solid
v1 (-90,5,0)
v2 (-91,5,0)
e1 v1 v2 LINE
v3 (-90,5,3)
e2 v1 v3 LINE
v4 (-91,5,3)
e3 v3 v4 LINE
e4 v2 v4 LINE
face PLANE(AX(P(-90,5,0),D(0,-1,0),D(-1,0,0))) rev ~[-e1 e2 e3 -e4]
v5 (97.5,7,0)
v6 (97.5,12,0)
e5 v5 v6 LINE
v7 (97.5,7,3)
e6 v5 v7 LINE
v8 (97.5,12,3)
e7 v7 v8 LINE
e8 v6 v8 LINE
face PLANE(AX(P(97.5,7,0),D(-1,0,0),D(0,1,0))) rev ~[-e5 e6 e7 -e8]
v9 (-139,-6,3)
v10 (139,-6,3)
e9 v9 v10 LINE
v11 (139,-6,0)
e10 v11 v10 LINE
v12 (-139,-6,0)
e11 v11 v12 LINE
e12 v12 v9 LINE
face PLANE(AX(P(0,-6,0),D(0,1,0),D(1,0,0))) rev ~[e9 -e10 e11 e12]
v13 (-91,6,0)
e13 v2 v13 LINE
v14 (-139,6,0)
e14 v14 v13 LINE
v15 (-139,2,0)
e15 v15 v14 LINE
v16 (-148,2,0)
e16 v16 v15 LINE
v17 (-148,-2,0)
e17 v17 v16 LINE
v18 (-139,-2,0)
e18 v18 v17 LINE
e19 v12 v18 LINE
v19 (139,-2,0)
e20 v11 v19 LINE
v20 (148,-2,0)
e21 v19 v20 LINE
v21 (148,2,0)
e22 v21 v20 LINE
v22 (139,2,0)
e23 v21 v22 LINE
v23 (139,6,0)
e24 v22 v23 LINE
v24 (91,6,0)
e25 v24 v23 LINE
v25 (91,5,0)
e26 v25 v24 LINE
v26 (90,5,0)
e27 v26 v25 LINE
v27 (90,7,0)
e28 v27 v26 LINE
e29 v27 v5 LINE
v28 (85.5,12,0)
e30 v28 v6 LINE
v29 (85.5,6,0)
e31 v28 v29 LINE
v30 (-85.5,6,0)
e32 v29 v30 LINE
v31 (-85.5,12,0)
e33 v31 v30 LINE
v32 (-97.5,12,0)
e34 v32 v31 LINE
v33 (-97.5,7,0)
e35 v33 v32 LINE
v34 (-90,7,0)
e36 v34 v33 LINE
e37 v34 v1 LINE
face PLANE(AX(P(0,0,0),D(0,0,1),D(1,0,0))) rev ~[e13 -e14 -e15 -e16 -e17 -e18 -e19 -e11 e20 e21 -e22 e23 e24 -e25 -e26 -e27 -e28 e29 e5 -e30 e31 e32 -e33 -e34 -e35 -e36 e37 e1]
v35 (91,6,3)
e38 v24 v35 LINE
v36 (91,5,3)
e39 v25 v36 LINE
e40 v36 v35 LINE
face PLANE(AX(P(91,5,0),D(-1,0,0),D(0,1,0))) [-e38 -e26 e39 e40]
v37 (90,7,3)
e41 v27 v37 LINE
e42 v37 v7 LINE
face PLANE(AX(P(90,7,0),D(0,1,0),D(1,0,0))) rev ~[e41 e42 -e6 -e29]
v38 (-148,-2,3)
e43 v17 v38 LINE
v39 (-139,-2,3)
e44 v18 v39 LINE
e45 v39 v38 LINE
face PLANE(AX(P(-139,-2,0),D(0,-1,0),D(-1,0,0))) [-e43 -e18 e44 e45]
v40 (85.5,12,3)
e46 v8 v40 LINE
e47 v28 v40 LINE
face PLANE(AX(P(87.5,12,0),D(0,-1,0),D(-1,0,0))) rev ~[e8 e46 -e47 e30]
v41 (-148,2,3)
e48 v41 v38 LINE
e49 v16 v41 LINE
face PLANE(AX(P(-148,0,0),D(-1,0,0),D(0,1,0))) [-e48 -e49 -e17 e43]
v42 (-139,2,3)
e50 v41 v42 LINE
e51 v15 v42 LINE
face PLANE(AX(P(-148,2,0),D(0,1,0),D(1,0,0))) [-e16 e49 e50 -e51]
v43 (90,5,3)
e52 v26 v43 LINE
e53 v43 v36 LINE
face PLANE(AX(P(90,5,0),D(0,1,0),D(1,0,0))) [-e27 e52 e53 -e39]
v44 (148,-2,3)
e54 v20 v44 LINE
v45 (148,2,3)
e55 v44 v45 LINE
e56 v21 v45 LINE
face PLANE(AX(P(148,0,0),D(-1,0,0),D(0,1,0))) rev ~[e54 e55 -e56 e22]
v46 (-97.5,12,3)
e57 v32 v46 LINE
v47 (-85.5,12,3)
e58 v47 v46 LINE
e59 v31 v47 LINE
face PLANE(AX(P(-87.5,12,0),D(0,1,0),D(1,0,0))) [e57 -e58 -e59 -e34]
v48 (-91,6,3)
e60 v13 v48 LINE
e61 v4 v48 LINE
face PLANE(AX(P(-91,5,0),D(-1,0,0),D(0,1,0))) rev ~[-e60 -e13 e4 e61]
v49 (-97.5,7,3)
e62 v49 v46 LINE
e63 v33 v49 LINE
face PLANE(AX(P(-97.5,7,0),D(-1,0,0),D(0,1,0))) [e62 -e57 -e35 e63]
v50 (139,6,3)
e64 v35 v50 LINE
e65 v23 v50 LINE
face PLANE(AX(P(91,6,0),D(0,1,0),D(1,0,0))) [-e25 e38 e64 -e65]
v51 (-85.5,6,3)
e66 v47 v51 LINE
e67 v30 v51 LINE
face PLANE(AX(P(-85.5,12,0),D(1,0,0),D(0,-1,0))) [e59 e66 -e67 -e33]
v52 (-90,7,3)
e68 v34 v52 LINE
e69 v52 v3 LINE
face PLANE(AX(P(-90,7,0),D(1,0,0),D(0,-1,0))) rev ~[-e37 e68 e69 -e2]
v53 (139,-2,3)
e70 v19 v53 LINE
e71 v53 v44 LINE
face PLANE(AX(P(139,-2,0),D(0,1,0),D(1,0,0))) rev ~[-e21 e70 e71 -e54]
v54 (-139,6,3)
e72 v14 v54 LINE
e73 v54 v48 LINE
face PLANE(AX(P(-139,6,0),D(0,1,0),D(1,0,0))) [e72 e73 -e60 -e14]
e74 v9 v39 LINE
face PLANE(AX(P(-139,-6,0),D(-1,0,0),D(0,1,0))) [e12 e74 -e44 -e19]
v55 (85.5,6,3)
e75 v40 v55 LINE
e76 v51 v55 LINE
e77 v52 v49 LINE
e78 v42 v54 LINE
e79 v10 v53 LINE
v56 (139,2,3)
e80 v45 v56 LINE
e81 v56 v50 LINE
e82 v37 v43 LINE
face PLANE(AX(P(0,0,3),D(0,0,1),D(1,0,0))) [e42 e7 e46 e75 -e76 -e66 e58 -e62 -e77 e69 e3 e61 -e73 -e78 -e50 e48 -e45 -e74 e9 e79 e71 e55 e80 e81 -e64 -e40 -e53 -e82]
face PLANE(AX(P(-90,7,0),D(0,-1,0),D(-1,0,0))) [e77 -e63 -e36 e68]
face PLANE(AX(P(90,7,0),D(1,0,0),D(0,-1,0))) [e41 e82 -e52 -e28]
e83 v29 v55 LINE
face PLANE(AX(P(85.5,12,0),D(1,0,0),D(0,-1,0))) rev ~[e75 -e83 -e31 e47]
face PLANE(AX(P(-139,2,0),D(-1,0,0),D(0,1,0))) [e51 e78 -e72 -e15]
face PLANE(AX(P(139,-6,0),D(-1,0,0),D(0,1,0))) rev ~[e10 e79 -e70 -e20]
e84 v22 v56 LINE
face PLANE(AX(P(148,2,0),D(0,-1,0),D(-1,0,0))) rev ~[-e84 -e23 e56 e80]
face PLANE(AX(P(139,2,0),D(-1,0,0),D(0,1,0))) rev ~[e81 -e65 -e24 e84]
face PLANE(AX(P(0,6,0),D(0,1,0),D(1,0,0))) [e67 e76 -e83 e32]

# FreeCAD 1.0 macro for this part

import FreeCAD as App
import Part
import Sketcher
Q = App.Units.Quantity


def add_polygon(sketch, points):
    """Adds a closed chain of lines whose ends are joined by coincident constraints."""
    first, n = sketch.GeometryCount, len(points)
    for a, b in zip(points, points[1:] + points[:1]):
        sketch.addGeometry(Part.LineSegment(App.Vector(*a, 0), App.Vector(*b, 0)), False)
    for i in range(n):
        sketch.addConstraint(Sketcher.Constraint("Coincident", first + i, 2, first + (i + 1) % n, 1))

doc = App.newDocument("Part")
body = doc.addObject("PartDesign::Body", "Body")

# Sketch on XY plane
sketch1 = body.newObject("Sketcher::SketchObject", "Sketch")
sketch1.AttachmentSupport = (doc.getObject("XY_Plane"), [""])
sketch1.MapMode = "FlatFace"
add_polygon(sketch1, [(85.5, 6), (-85.5, 6), (-85.5, 12), (-97.5, 12), (-97.5, 7), (-90, 7), (-90, 5), (-91, 5), (-91, 6), (-139, 6), (-139, 2), (-148, 2), (-148, -2), (-139, -2), (-139, -6), (139, -6), (139, -2), (148, -2), (148, 2), (139, 2), (139, 6), (91, 6), (91, 5), (90, 5), (90, 7), (97.5, 7), (97.5, 12), (85.5, 12)])  # lines 0-27
sketch1.addConstraint([
    Sketcher.Constraint("Horizontal", 0),
    Sketcher.Constraint("Vertical", 1),
    Sketcher.Constraint("Horizontal", 2),
    Sketcher.Constraint("Vertical", 3),
    Sketcher.Constraint("Horizontal", 4),
    Sketcher.Constraint("Vertical", 5),
    Sketcher.Constraint("Horizontal", 6),
    Sketcher.Constraint("Vertical", 7),
    Sketcher.Constraint("Horizontal", 8),
    Sketcher.Constraint("Vertical", 9),
    Sketcher.Constraint("Horizontal", 10),
    Sketcher.Constraint("Vertical", 11),
    Sketcher.Constraint("Horizontal", 12),
    Sketcher.Constraint("Vertical", 13),
    Sketcher.Constraint("Horizontal", 14),
    Sketcher.Constraint("Vertical", 15),
    Sketcher.Constraint("Horizontal", 16),
    Sketcher.Constraint("Vertical", 17),
    Sketcher.Constraint("Horizontal", 18),
    Sketcher.Constraint("Vertical", 19),
    Sketcher.Constraint("Horizontal", 20),
    Sketcher.Constraint("Vertical", 21),
    Sketcher.Constraint("Horizontal", 22),
    Sketcher.Constraint("Vertical", 23),
    Sketcher.Constraint("Horizontal", 24),
    Sketcher.Constraint("Vertical", 25),
    Sketcher.Constraint("Horizontal", 26),
    Sketcher.Constraint("Vertical", 27),
    Sketcher.Constraint("Symmetric", 8, 2, 14, 2, -1, 1),
    Sketcher.Constraint("Symmetric", 10, 2, 16, 2, -1, 1),
    Sketcher.Constraint("Symmetric", 12, 2, 18, 2, -1, 1),
    Sketcher.Constraint("Symmetric", 12, 2, 15, 2, -2),
    Sketcher.Constraint("Symmetric", 7, 2, 20, 2, -2),
    Sketcher.Constraint("Symmetric", 5, 2, 22, 2, -2),
    Sketcher.Constraint("Symmetric", 3, 2, 24, 2, -2),
    Sketcher.Constraint("Symmetric", 1, 2, 26, 2, -2),
    Sketcher.Constraint("Horizontal", 0, 2, 7, 2),
    Sketcher.Constraint("Equal", 22, 7),
    Sketcher.Constraint("Equal", 9, 11),
    Sketcher.Constraint("DistanceX", 2, 2, 2, 1, Q("12 mm")),
    Sketcher.Constraint("DistanceY", 5, 2, 5, 1, Q("2 mm")),
    Sketcher.Constraint("DistanceY", 9, 2, 9, 1, Q("4 mm")),
    Sketcher.Constraint("DistanceY", -1, 1, 1, 2, Q("12 mm")),
    Sketcher.Constraint("DistanceX", 0, 2, 0, 1, Q("171 mm")),
    Sketcher.Constraint("DistanceX", 6, 2, 6, 1, Q("1 mm")),
    Sketcher.Constraint("DistanceX", 8, 2, 8, 1, Q("48 mm")),
    Sketcher.Constraint("DistanceX", 10, 2, 10, 1, Q("9 mm")),
    Sketcher.Constraint("DistanceX", 14, 1, 14, 2, Q("278 mm")),
])
pad1 = body.newObject("PartDesign::Pad", "Pad")
pad1.Profile = sketch1
pad1.Length = 3

doc.recompute()
